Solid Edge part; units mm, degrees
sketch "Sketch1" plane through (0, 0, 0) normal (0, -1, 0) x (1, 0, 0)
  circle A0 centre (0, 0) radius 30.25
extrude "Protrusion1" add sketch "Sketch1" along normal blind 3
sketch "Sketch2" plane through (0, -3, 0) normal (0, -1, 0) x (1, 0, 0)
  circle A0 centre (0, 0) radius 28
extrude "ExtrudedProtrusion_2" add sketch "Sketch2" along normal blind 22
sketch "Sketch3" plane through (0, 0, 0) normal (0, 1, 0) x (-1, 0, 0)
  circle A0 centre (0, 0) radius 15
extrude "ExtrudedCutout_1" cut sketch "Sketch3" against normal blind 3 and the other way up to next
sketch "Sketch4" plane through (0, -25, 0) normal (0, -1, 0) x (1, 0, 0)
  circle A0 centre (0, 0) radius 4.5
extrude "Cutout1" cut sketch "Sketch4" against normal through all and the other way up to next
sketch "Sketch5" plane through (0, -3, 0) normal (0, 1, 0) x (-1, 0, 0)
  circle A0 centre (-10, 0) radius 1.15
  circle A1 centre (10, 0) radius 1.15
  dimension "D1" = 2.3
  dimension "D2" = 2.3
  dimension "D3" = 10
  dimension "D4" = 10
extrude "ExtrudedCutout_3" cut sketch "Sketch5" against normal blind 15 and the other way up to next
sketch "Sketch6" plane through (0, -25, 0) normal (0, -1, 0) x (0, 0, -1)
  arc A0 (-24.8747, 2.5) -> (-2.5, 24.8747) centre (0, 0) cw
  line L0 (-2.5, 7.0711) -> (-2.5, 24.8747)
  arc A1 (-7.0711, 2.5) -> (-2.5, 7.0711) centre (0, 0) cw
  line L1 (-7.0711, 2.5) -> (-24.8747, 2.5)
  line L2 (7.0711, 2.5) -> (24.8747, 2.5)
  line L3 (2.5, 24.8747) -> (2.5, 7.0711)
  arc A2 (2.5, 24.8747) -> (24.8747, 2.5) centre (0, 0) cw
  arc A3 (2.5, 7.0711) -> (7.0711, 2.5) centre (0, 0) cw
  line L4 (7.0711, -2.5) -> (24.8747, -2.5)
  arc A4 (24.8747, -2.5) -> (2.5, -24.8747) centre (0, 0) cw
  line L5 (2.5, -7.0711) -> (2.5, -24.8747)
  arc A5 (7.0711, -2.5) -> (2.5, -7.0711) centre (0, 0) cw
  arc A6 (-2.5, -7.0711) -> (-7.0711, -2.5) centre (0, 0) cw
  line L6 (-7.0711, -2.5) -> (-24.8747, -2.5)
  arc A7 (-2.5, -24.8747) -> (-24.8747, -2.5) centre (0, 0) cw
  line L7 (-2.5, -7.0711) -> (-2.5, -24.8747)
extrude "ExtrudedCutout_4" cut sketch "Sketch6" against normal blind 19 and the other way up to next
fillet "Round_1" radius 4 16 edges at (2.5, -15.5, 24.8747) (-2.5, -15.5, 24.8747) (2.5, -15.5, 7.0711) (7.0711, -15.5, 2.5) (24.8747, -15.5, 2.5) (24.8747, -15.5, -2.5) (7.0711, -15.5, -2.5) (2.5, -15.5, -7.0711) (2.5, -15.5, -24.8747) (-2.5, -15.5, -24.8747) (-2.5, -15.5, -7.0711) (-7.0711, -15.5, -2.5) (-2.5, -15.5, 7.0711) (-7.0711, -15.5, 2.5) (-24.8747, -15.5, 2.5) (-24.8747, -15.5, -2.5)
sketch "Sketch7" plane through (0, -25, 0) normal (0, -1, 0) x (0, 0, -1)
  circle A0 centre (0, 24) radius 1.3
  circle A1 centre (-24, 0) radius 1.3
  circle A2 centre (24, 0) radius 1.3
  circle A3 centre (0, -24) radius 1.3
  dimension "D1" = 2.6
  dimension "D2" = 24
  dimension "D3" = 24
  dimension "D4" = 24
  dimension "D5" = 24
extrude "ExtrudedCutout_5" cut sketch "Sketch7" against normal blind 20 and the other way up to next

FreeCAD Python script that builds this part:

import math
import FreeCAD as App
import Part
import Sketcher
from FreeCAD import Vector
Q = App.Units.Quantity


def edges_at(feature, points):
    """Names of the edges that pass closest to the given points."""
    edges = feature.Shape.Edges
    near = lambda p: min(range(len(edges)), key=lambda i: edges[i].distToShape(Part.Vertex(*p))[0])
    return sorted({f"Edge{near(p) + 1}" for p in points})

doc = App.newDocument("Part")
body = doc.addObject("PartDesign::Body", "Body")

# Sketch on XZ plane
sketch1 = body.newObject("Sketcher::SketchObject", "Sketch")
sketch1.AttachmentSupport = (doc.getObject("XZ_Plane"), [""])
sketch1.MapMode = "FlatFace"
sketch1.addGeometry(Part.Circle(Vector(0, 0, 0), Vector(0, 0, 1), 30), False)
sketch1.addConstraint(Sketcher.Constraint("Coincident", 0, 3, -1, 1))
sketch1.addConstraint(Sketcher.Constraint("Diameter", 0, Q("60.5 mm")))
pad1 = body.newObject("PartDesign::Pad", "Pad")
pad1.Profile = sketch1
pad1.Length = 3

# Sketch on XZ plane
sketch2 = body.newObject("Sketcher::SketchObject", "Sketch001")
sketch2.AttachmentSupport = (doc.getObject("XZ_Plane"), [""])
sketch2.MapMode = "FlatFace"
sketch2.AttachmentOffset = App.Placement(Vector(0, 0, 3), App.Rotation())
sketch2.addGeometry(Part.Circle(Vector(0, 0, 0), Vector(0, 0, 1), 28), False)
sketch2.addConstraint(Sketcher.Constraint("Coincident", 0, 3, -1, 1))
sketch2.addConstraint(Sketcher.Constraint("Diameter", 0, Q("56 mm")))
pad2 = body.newObject("PartDesign::Pad", "Pad001")
pad2.Profile = sketch2
pad2.Length = 22

# Sketch on XZ plane
sketch3 = body.newObject("Sketcher::SketchObject", "Sketch002")
sketch3.AttachmentSupport = (doc.getObject("XZ_Plane"), [""])
sketch3.MapMode = "FlatFace"
sketch3.addGeometry(Part.Circle(Vector(0, 0, 0), Vector(0, 0, 1), 15), False)
sketch3.addConstraint(Sketcher.Constraint("Coincident", 0, 3, -1, 1))
sketch3.addConstraint(Sketcher.Constraint("Diameter", 0, Q("30 mm")))
pocket1 = body.newObject("PartDesign::Pocket", "Pocket")
pocket1.Profile = sketch3
pocket1.Length = 3
pocket1.Reversed = True

# Sketch on XZ plane
sketch4 = body.newObject("Sketcher::SketchObject", "Sketch003")
sketch4.AttachmentSupport = (doc.getObject("XZ_Plane"), [""])
sketch4.MapMode = "FlatFace"
sketch4.AttachmentOffset = App.Placement(Vector(0, 0, 25), App.Rotation())
sketch4.addGeometry(Part.Circle(Vector(0, 0, 0), Vector(0, 0, 1), 4.5), False)
sketch4.addConstraint(Sketcher.Constraint("Coincident", 0, 3, -1, 1))
sketch4.addConstraint(Sketcher.Constraint("Diameter", 0, Q("9 mm")))
pocket2 = body.newObject("PartDesign::Pocket", "Pocket001")
pocket2.Profile = sketch4
pocket2.Length = 26

# Sketch on XZ plane
sketch5 = body.newObject("Sketcher::SketchObject", "Sketch004")
sketch5.AttachmentSupport = (doc.getObject("XZ_Plane"), [""])
sketch5.MapMode = "FlatFace"
sketch5.AttachmentOffset = App.Placement(Vector(0, 0, 3), App.Rotation())
sketch5.addGeometry(Part.Circle(Vector(10, 0, 0), Vector(0, 0, 1), 1.1), False)
sketch5.addGeometry(Part.Circle(Vector(-10, 0, 0), Vector(0, 0, 1), 1.1), False)
sketch5.addConstraint(Sketcher.Constraint("Equal", 0, 1))
sketch5.addConstraint(Sketcher.Constraint("Symmetric", 0, 3, 1, 3, -1, 1))
sketch5.addConstraint(Sketcher.Constraint("PointOnObject", 0, 3, -1))
sketch5.addConstraint(Sketcher.Constraint("Diameter", 0, Q("2.3 mm")))
sketch5.addConstraint(Sketcher.Constraint("DistanceX", -1, 1, 0, 3, Q("10 mm")))
pocket3 = body.newObject("PartDesign::Pocket", "Pocket002")
pocket3.Profile = sketch5
pocket3.Length = 15
pocket3.Reversed = True

# Sketch on XZ plane
sketch6 = body.newObject("Sketcher::SketchObject", "Sketch005")
sketch6.AttachmentSupport = (doc.getObject("XZ_Plane"), [""])
sketch6.MapMode = "FlatFace"
sketch6.AttachmentOffset = App.Placement(Vector(0, 0, 25), App.Rotation())
sketch6.addGeometry(Part.ArcOfCircle(Part.Circle(Vector(0, 0, 0), Vector(0, 0, 1), 25), math.radians(6), math.radians(84)), False)
sketch6.addGeometry(Part.LineSegment(Vector(2, 25, 0), Vector(2, 7, 0)), False)
sketch6.addGeometry(Part.ArcOfCircle(Part.Circle(Vector(0, 0, 0), Vector(0, 0, 1), 8), math.radians(19), math.radians(71)), False)
sketch6.addGeometry(Part.LineSegment(Vector(7, 2, 0), Vector(25, 2, 0)), False)
sketch6.addGeometry(Part.ArcOfCircle(Part.Circle(Vector(0, 0, 0), Vector(0, 0, 1), 8), math.radians(-71), math.radians(-19)), False)
sketch6.addGeometry(Part.LineSegment(Vector(2, -7, 0), Vector(2, -25, 0)), False)
sketch6.addGeometry(Part.ArcOfCircle(Part.Circle(Vector(0, 0, 0), Vector(0, 0, 1), 25), math.radians(-84), math.radians(-6)), False)
sketch6.addGeometry(Part.LineSegment(Vector(25, -2, 0), Vector(7, -2, 0)), False)
sketch6.addGeometry(Part.LineSegment(Vector(-2, -25, 0), Vector(-2, -7, 0)), False)
sketch6.addGeometry(Part.ArcOfCircle(Part.Circle(Vector(0, 0, 0), Vector(0, 0, 1), 8), math.radians(-161), math.radians(-109)), False)
sketch6.addGeometry(Part.LineSegment(Vector(-7, -2, 0), Vector(-25, -2, 0)), False)
sketch6.addGeometry(Part.ArcOfCircle(Part.Circle(Vector(0, 0, 0), Vector(0, 0, 1), 25), math.radians(-174), math.radians(-96)), False)
sketch6.addGeometry(Part.LineSegment(Vector(-25, 2, 0), Vector(-7, 2, 0)), False)
sketch6.addGeometry(Part.ArcOfCircle(Part.Circle(Vector(0, 0, 0), Vector(0, 0, 1), 8), math.radians(109), math.radians(161)), False)
sketch6.addGeometry(Part.LineSegment(Vector(-2, 7, 0), Vector(-2, 25, 0)), False)
sketch6.addGeometry(Part.ArcOfCircle(Part.Circle(Vector(0, 0, 0), Vector(0, 0, 1), 25), math.radians(96), math.radians(174)), False)
sketch6.addConstraint(Sketcher.Constraint("Coincident", 0, 2, 1, 1))
sketch6.addConstraint(Sketcher.Constraint("Coincident", 1, 2, 2, 2))
sketch6.addConstraint(Sketcher.Constraint("Coincident", 2, 1, 3, 1))
sketch6.addConstraint(Sketcher.Constraint("Coincident", 3, 2, 0, 1))
sketch6.addConstraint(Sketcher.Constraint("Coincident", 4, 1, 5, 1))
sketch6.addConstraint(Sketcher.Constraint("Coincident", 5, 2, 6, 1))
sketch6.addConstraint(Sketcher.Constraint("Coincident", 6, 2, 7, 1))
sketch6.addConstraint(Sketcher.Constraint("Coincident", 7, 2, 4, 2))
sketch6.addConstraint(Sketcher.Constraint("Coincident", 8, 2, 9, 2))
sketch6.addConstraint(Sketcher.Constraint("Coincident", 9, 1, 10, 1))
sketch6.addConstraint(Sketcher.Constraint("Coincident", 10, 2, 11, 1))
sketch6.addConstraint(Sketcher.Constraint("Coincident", 11, 2, 8, 1))
sketch6.addConstraint(Sketcher.Constraint("Coincident", 12, 2, 13, 2))
sketch6.addConstraint(Sketcher.Constraint("Coincident", 13, 1, 14, 1))
sketch6.addConstraint(Sketcher.Constraint("Coincident", 14, 2, 15, 1))
sketch6.addConstraint(Sketcher.Constraint("Coincident", 15, 2, 12, 1))
sketch6.addConstraint(Sketcher.Constraint("Vertical", 1))
sketch6.addConstraint(Sketcher.Constraint("Horizontal", 3))
sketch6.addConstraint(Sketcher.Constraint("Vertical", 5))
sketch6.addConstraint(Sketcher.Constraint("Horizontal", 7))
sketch6.addConstraint(Sketcher.Constraint("Vertical", 8))
sketch6.addConstraint(Sketcher.Constraint("Horizontal", 10))
sketch6.addConstraint(Sketcher.Constraint("Horizontal", 12))
sketch6.addConstraint(Sketcher.Constraint("Vertical", 14))
sketch6.addConstraint(Sketcher.Constraint("Coincident", 0, 3, -1, 1))
sketch6.addConstraint(Sketcher.Constraint("Coincident", 2, 3, -1, 1))
sketch6.addConstraint(Sketcher.Constraint("Coincident", 4, 3, -1, 1))
sketch6.addConstraint(Sketcher.Constraint("Coincident", 6, 3, -1, 1))
sketch6.addConstraint(Sketcher.Constraint("Coincident", 9, 3, -1, 1))
sketch6.addConstraint(Sketcher.Constraint("Coincident", 11, 3, -1, 1))
sketch6.addConstraint(Sketcher.Constraint("Coincident", 13, 3, -1, 1))
sketch6.addConstraint(Sketcher.Constraint("Coincident", 15, 3, -1, 1))
sketch6.addConstraint(Sketcher.Constraint("Equal", 2, 4))
sketch6.addConstraint(Sketcher.Constraint("Equal", 0, 6))
sketch6.addConstraint(Sketcher.Constraint("Equal", 4, 9))
sketch6.addConstraint(Sketcher.Constraint("Equal", 6, 11))
sketch6.addConstraint(Sketcher.Constraint("Equal", 9, 13))
sketch6.addConstraint(Sketcher.Constraint("Equal", 11, 15))
sketch6.addConstraint(Sketcher.Constraint("Horizontal", 4, 1, 8, 2))
sketch6.addConstraint(Sketcher.Constraint("Horizontal", 7, 2, 9, 1))
sketch6.addConstraint(Sketcher.Constraint("Horizontal", 3, 2, 12, 2))
sketch6.addConstraint(Sketcher.Constraint("Horizontal", 1, 2, 13, 1))
sketch6.addConstraint(Sketcher.Constraint("Vertical", 1, 2, 4, 1))
sketch6.addConstraint(Sketcher.Constraint("Vertical", 3, 2, 6, 2))
sketch6.addConstraint(Sketcher.Constraint("Equal", 12, 1))
sketch6.addConstraint(Sketcher.Constraint("Radius", 0, Q("25 mm")))
sketch6.addConstraint(Sketcher.Constraint("Radius", 2, Q("7.5 mm")))
sketch6.addConstraint(Sketcher.Constraint("DistanceY", 6, 2, 3, 2, Q("5 mm")))
pocket4 = body.newObject("PartDesign::Pocket", "Pocket003")
pocket4.Profile = sketch6
pocket4.Length = 19
doc.recompute()

fillet = body.newObject("PartDesign::Fillet", "Fillet")
fillet.Base = (pocket4, edges_at(pocket4, [
    (2.5, -15.5, 24.875),
    (-2.5, -15.5, 24.875),
    (2.5, -15.5, 7.071),
    (7.071, -15.5, 2.5),
    (24.875, -15.5, 2.5),
    (24.875, -15.5, -2.5),
    (7.071, -15.5, -2.5),
    (2.5, -15.5, -7.071),
    (2.5, -15.5, -24.875),
    (-2.5, -15.5, -24.875),
    (-2.5, -15.5, -7.071),
    (-7.071, -15.5, -2.5),
    (-2.5, -15.5, 7.071),
    (-7.071, -15.5, 2.5),
    (-24.875, -15.5, 2.5),
    (-24.875, -15.5, -2.5),
]))
fillet.Radius = 4

# Sketch on XZ plane
sketch7 = body.newObject("Sketcher::SketchObject", "Sketch006")
sketch7.AttachmentSupport = (doc.getObject("XZ_Plane"), [""])
sketch7.MapMode = "FlatFace"
sketch7.AttachmentOffset = App.Placement(Vector(0, 0, 25), App.Rotation())
sketch7.addGeometry(Part.Circle(Vector(24, 0, 0), Vector(0, 0, 1), 1.3), False)
sketch7.addGeometry(Part.Circle(Vector(0, 24, 0), Vector(0, 0, 1), 1.3), False)
sketch7.addGeometry(Part.Circle(Vector(0, -24, 0), Vector(0, 0, 1), 1.3), False)
sketch7.addGeometry(Part.Circle(Vector(-24, 0, 0), Vector(0, 0, 1), 1.3), False)
sketch7.addConstraint(Sketcher.Constraint("Equal", 0, 1))
sketch7.addConstraint(Sketcher.Constraint("Equal", 1, 2))
sketch7.addConstraint(Sketcher.Constraint("Equal", 2, 3))
sketch7.addConstraint(Sketcher.Constraint("Symmetric", 1, 3, 2, 3, -1, 1))
sketch7.addConstraint(Sketcher.Constraint("Symmetric", 0, 3, 3, 3, -1, 1))
sketch7.addConstraint(Sketcher.Constraint("PointOnObject", 0, 3, -1))
sketch7.addConstraint(Sketcher.Constraint("PointOnObject", 1, 3, -2))
sketch7.addConstraint(Sketcher.Constraint("Diameter", 0, Q("2.6 mm")))
sketch7.addConstraint(Sketcher.Constraint("DistanceX", -1, 1, 0, 3, Q("24 mm")))
sketch7.addConstraint(Sketcher.Constraint("DistanceY", -1, 1, 1, 3, Q("24 mm")))
pocket5 = body.newObject("PartDesign::Pocket", "Pocket004")
pocket5.Profile = sketch7
pocket5.Length = 20

doc.recompute()
